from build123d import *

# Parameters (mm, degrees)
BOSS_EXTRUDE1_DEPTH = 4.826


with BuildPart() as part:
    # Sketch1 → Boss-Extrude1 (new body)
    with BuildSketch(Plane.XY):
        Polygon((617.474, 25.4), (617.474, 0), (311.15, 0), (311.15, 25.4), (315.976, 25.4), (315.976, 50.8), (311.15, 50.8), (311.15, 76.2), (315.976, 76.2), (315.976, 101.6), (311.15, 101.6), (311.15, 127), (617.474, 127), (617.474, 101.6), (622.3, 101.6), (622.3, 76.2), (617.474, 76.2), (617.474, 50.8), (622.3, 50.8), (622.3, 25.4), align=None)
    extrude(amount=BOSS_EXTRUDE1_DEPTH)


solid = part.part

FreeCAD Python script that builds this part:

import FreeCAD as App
import Part
import Sketcher
Q = App.Units.Quantity


def add_polygon(sketch, points):
    """Adds a closed chain of lines whose ends are joined by coincident constraints."""
    first, n = sketch.GeometryCount, len(points)
    for a, b in zip(points, points[1:] + points[:1]):
        sketch.addGeometry(Part.LineSegment(App.Vector(*a, 0), App.Vector(*b, 0)), False)
    for i in range(n):
        sketch.addConstraint(Sketcher.Constraint("Coincident", first + i, 2, first + (i + 1) % n, 1))

doc = App.newDocument("Part")
body = doc.addObject("PartDesign::Body", "Body")

sketch1 = body.newObject("Sketcher::SketchObject", "Sketch")
sketch1.AttachmentSupport = (doc.getObject("XY_Plane"), [""])
sketch1.MapMode = "FlatFace"
add_polygon(sketch1, [(617.474, 0), (617.474, 25.4), (622.3, 25.4), (622.3, 50.8), (617.474, 50.8), (617.474, 76.2), (622.3, 76.2), (622.3, 101.6), (617.474, 101.6), (617.474, 127), (311.15, 127), (311.15, 101.6), (315.976, 101.6), (315.976, 76.2), (311.15, 76.2), (311.15, 50.8), (315.976, 50.8), (315.976, 25.4), (311.15, 25.4), (311.15, 0)])
sketch1.addConstraint([
    Sketcher.Constraint("Vertical", 0),
    Sketcher.Constraint("Horizontal", 1),
    Sketcher.Constraint("Vertical", 2),
    Sketcher.Constraint("Horizontal", 3),
    Sketcher.Constraint("Vertical", 4),
    Sketcher.Constraint("Horizontal", 5),
    Sketcher.Constraint("Vertical", 6),
    Sketcher.Constraint("Horizontal", 7),
    Sketcher.Constraint("Vertical", 8),
    Sketcher.Constraint("Horizontal", 9),
    Sketcher.Constraint("Vertical", 10),
    Sketcher.Constraint("Horizontal", 11),
    Sketcher.Constraint("Vertical", 12),
    Sketcher.Constraint("Horizontal", 13),
    Sketcher.Constraint("Vertical", 14),
    Sketcher.Constraint("Horizontal", 15),
    Sketcher.Constraint("Vertical", 16),
    Sketcher.Constraint("Horizontal", 17),
    Sketcher.Constraint("Vertical", 18),
    Sketcher.Constraint("Horizontal", 19),
    Sketcher.Constraint("PointOnObject", 18, 2, -1),
    Sketcher.Constraint("Horizontal", 7, 2, 10, 2),
    Sketcher.Constraint("Horizontal", 5, 2, 12, 2),
    Sketcher.Constraint("Horizontal", 3, 2, 14, 2),
    Sketcher.Constraint("Horizontal", 1, 2, 16, 2),
    Sketcher.Constraint("Vertical", 0, 2, 3, 2),
    Sketcher.Constraint("Vertical", 2, 2, 5, 2),
    Sketcher.Constraint("Vertical", 4, 2, 7, 2),
    Sketcher.Constraint("Vertical", 10, 2, 13, 2),
    Sketcher.Constraint("Vertical", 12, 2, 15, 2),
    Sketcher.Constraint("Vertical", 14, 2, 17, 2),
    Sketcher.Constraint("Equal", 7, 11),
    Sketcher.Constraint("Equal", 0, 2),
    Sketcher.Constraint("Equal", 2, 4),
    Sketcher.Constraint("Equal", 4, 6),
    Sketcher.Constraint("Equal", 6, 8),
    Sketcher.Constraint("DistanceY", 0, 1, 0, 2, Q("1 in")),
    Sketcher.Constraint("DistanceX", 1, 1, 1, 2, Q("0.19 in")),
    Sketcher.Constraint("DistanceX", 9, 2, 9, 1, Q("12.06 in")),
    Sketcher.Constraint("DistanceX", -1, 1, 1, 2, Q("24.5 in")),
])
pad1 = body.newObject("PartDesign::Pad", "Pad")
pad1.Profile = sketch1
pad1.Length = Q("0.19 in")

doc.recompute()
